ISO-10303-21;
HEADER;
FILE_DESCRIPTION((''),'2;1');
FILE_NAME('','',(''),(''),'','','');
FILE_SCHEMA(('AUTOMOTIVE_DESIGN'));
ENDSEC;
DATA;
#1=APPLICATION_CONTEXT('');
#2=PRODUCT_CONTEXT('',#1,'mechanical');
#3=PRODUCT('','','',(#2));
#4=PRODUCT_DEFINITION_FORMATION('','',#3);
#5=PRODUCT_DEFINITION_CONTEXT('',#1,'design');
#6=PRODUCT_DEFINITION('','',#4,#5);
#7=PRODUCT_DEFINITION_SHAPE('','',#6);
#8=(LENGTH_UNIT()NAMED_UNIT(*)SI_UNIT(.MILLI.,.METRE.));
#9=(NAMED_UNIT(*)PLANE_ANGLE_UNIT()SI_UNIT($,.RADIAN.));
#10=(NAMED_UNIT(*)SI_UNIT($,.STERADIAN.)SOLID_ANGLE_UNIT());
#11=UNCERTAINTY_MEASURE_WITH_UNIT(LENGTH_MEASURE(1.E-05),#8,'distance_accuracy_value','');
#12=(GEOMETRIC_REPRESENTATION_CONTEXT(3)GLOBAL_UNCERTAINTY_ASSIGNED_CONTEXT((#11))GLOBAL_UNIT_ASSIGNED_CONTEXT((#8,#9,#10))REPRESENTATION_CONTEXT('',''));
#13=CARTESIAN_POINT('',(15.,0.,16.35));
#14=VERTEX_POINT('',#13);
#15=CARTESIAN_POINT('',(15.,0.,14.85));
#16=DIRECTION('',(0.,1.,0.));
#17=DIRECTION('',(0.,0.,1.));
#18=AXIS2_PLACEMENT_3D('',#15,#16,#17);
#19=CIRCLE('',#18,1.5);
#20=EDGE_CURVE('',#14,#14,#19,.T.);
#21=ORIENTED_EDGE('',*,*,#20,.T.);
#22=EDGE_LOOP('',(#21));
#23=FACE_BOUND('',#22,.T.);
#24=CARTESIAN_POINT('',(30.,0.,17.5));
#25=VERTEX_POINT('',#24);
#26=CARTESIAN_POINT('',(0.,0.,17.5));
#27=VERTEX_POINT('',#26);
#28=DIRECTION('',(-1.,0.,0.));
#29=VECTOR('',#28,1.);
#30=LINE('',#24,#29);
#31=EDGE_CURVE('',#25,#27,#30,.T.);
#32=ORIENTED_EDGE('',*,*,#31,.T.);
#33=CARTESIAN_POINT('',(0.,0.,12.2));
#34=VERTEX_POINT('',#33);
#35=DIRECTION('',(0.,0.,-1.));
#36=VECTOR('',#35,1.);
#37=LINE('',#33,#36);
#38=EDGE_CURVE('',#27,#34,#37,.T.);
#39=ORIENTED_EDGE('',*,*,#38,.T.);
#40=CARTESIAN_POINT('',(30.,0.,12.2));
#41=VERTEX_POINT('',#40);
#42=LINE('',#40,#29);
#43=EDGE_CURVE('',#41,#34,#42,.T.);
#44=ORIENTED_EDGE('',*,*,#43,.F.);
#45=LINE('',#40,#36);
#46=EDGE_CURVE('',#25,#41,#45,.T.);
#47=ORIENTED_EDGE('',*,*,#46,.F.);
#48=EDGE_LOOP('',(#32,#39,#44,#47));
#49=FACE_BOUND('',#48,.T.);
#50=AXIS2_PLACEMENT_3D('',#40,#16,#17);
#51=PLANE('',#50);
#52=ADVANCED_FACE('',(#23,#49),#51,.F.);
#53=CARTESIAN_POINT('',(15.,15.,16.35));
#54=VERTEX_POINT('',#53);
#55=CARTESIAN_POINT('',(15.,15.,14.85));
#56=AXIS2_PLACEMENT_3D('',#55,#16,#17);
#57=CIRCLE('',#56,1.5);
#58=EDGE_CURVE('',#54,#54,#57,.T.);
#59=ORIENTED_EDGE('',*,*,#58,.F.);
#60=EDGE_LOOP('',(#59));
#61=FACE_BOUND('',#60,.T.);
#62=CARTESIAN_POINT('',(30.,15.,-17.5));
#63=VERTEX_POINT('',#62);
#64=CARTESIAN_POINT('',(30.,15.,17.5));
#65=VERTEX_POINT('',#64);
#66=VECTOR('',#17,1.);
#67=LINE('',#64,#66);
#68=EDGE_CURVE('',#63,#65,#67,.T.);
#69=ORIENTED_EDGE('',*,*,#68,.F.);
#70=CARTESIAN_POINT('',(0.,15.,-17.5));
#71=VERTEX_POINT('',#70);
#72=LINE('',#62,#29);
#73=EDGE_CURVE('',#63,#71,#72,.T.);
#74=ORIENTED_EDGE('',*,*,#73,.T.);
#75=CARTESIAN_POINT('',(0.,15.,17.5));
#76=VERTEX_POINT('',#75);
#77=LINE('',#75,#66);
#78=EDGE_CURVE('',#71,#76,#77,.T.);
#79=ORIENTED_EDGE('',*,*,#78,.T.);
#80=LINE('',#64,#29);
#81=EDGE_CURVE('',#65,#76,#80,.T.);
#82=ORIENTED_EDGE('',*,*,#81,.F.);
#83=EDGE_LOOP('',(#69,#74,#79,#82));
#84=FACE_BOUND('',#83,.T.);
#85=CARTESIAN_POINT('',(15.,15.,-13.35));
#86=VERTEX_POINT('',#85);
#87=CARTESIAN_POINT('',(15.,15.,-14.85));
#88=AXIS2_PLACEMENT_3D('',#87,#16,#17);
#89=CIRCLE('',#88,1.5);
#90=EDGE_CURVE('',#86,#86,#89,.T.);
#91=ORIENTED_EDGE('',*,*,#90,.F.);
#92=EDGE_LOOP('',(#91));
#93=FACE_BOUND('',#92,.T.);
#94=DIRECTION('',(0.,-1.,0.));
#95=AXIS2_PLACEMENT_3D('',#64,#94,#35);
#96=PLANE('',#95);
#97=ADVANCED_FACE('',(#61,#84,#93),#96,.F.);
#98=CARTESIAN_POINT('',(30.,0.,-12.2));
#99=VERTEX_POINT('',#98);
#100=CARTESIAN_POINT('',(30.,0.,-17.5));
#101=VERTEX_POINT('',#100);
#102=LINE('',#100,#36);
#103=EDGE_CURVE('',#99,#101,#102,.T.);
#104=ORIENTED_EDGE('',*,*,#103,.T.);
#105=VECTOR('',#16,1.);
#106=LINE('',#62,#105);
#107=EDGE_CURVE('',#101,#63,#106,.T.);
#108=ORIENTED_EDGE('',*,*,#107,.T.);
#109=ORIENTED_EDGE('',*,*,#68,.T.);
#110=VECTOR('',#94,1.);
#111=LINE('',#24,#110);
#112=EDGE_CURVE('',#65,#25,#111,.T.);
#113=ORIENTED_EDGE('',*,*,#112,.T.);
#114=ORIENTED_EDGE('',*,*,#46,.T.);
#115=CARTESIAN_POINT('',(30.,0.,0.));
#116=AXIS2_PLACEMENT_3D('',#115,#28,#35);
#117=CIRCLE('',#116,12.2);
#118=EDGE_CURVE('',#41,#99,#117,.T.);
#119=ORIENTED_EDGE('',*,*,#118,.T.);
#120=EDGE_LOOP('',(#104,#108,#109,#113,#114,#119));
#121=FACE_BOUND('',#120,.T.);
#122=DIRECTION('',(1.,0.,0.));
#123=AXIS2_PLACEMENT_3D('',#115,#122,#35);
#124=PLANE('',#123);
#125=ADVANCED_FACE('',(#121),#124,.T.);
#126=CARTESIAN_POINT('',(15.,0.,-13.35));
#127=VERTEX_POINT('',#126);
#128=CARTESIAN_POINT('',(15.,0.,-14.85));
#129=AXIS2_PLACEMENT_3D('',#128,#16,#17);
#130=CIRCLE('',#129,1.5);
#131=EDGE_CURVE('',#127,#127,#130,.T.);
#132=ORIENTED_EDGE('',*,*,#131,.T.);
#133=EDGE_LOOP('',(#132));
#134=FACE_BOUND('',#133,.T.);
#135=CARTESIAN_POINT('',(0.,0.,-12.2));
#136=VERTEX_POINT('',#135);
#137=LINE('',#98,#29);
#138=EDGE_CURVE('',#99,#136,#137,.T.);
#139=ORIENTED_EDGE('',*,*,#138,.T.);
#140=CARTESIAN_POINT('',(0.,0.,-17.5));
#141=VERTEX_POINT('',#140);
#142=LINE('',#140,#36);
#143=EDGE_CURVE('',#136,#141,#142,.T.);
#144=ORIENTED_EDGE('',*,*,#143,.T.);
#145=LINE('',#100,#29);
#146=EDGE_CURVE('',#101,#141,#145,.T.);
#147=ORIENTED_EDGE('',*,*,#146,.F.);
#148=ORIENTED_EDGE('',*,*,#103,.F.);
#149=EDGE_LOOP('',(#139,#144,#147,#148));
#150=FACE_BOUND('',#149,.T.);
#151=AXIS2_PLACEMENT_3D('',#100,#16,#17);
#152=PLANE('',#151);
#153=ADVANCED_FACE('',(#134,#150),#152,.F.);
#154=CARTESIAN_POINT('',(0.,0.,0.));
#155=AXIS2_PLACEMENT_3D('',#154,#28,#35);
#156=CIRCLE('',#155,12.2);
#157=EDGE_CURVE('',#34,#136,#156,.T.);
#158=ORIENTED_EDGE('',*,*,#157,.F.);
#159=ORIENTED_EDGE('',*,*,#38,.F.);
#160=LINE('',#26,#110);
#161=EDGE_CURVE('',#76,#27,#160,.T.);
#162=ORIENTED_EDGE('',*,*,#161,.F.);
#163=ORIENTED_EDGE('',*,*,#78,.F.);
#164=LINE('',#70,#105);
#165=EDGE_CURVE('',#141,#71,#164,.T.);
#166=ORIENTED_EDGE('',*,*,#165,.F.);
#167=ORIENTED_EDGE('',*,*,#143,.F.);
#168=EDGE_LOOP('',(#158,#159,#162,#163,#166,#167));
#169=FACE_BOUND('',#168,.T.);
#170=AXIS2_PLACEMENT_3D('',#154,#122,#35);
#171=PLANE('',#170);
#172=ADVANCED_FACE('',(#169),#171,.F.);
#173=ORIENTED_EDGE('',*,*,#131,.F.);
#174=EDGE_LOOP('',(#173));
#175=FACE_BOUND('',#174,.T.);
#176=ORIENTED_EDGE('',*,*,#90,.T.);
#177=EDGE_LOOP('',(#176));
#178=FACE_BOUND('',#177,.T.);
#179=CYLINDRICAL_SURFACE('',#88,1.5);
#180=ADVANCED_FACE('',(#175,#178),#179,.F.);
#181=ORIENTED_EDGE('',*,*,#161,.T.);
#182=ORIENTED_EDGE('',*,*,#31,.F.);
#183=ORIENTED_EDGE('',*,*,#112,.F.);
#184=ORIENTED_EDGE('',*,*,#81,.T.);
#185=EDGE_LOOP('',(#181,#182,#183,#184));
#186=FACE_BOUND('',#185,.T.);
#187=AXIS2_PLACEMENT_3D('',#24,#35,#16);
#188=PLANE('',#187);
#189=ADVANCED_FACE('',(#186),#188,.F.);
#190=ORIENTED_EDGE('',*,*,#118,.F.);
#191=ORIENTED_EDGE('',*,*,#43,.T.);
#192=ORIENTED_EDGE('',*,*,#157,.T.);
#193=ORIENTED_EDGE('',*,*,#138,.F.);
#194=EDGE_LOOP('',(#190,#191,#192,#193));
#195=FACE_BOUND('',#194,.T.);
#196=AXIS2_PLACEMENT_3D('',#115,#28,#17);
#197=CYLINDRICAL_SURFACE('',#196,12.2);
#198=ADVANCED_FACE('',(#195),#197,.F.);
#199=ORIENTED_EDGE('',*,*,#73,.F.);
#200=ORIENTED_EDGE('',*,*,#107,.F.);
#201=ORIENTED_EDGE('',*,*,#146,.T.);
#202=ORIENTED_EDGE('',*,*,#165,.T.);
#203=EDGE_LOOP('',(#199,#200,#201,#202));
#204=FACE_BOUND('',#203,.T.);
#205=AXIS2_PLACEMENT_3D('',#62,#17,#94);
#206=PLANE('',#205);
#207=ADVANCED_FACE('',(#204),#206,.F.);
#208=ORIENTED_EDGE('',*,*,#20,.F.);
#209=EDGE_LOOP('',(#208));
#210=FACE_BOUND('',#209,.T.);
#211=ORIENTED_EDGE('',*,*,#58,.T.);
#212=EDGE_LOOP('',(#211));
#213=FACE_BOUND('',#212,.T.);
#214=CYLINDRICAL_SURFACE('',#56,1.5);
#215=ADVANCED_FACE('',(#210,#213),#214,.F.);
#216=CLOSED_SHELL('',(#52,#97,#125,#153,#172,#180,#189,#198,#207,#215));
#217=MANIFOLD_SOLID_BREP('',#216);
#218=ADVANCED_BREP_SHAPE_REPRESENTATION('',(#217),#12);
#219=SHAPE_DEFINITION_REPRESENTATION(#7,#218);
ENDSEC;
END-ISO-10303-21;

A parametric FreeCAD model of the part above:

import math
import FreeCAD as App
import Part
import Sketcher

V = App.Vector

doc = App.newDocument("Part")
params = doc.addObject("Spreadsheet::Sheet", "Params")
for row, (alias, value) in enumerate([
    ("sketch1_radius", "12.2 mm"),
    ("sketch1_width", "15 mm"),
    ("sketch1_height", "35 mm"),
    ("pad1_length", "30 mm"),
    ("sketch2_diameter", "3 mm"),
    ("hole_diameter", "3 mm"),
], start=1):
    params.set(f"A{row}", alias)
    params.set(f"B{row}", "=" + value)
    params.setAlias(f"B{row}", alias)

body = doc.addObject("PartDesign::Body", "Body")

# Sketch on YZ plane
sketch1 = doc.addObject("Sketcher::SketchObject", "Sketch")
body.addObject(sketch1)
sketch1.AttachmentSupport = (doc.YZ_Plane, [""])
sketch1.MapMode = "FlatFace"
sketch1.addGeometry(Part.LineSegment(V(15, 18, 0), V(0, 18, 0)), False)
sketch1.addGeometry(Part.LineSegment(V(0, 18, 0), V(0, 12, 0)), False)
sketch1.addGeometry(Part.ArcOfCircle(Part.Circle(V(0, 0, 0), V(0, 0, 1), 12), math.radians(-90), math.radians(90)), False)
sketch1.addGeometry(Part.LineSegment(V(0, -12, 0), V(0, -18, 0)), False)
sketch1.addGeometry(Part.LineSegment(V(0, -18, 0), V(15, -18, 0)), False)
sketch1.addGeometry(Part.LineSegment(V(15, -18, 0), V(15, 18, 0)), False)
sketch1.addConstraint(Sketcher.Constraint("Coincident", 0, 2, 1, 1))
sketch1.addConstraint(Sketcher.Constraint("Coincident", 1, 2, 2, 2))
sketch1.addConstraint(Sketcher.Constraint("Coincident", 2, 1, 3, 1))
sketch1.addConstraint(Sketcher.Constraint("Coincident", 3, 2, 4, 1))
sketch1.addConstraint(Sketcher.Constraint("Coincident", 4, 2, 5, 1))
sketch1.addConstraint(Sketcher.Constraint("Coincident", 5, 2, 0, 1))
sketch1.addConstraint(Sketcher.Constraint("Horizontal", 0))
sketch1.addConstraint(Sketcher.Constraint("Vertical", 1))
sketch1.addConstraint(Sketcher.Constraint("Vertical", 3))
sketch1.addConstraint(Sketcher.Constraint("Horizontal", 4))
sketch1.addConstraint(Sketcher.Constraint("Vertical", 5))
sketch1.addConstraint(Sketcher.Constraint("Coincident", 2, 3, -1, 1))
sketch1.addConstraint(Sketcher.Constraint("Symmetric", 0, 2, 3, 2, -1, 1))
sketch1.addConstraint(Sketcher.Constraint("PointOnObject", 0, 2, -2))
sketch1.addConstraint(Sketcher.Constraint("Radius", 2, 12.2))
sketch1.addConstraint(Sketcher.Constraint("DistanceX", 0, 2, 0, 1, 15.0))
sketch1.addConstraint(Sketcher.Constraint("DistanceY", 5, 1, 5, 2, 35.0))
sketch1.setExpression("Constraints[14]", "Params.sketch1_radius")
sketch1.setExpression("Constraints[15]", "Params.sketch1_width")
sketch1.setExpression("Constraints[16]", "Params.sketch1_height")
pad1 = doc.addObject("PartDesign::Pad", "Pad")
body.addObject(pad1)
pad1.Profile = sketch1
pad1.setExpression("Length", "Params.pad1_length")

# Sketch on XZ plane
sketch2 = doc.addObject("Sketcher::SketchObject", "Sketch001")
body.addObject(sketch2)
sketch2.AttachmentSupport = (doc.XZ_Plane, [""])
sketch2.MapMode = "FlatFace"
sketch2.AttachmentOffset = App.Placement(V(0, 0, -15), App.Rotation())
sketch2.addGeometry(Part.Circle(V(15, -14.8, 0), V(0, 0, 1), 1.5), False)
sketch2.addGeometry(Part.Circle(V(15, 14.8, 0), V(0, 0, 1), 1.5), False)
sketch2.addConstraint(Sketcher.Constraint("Equal", 0, 1))
sketch2.addConstraint(Sketcher.Constraint("Symmetric", 0, 3, 1, 3, -1))
sketch2.addConstraint(Sketcher.Constraint("Diameter", 0, 3.0))
sketch2.addConstraint(Sketcher.Constraint("DistanceX", -1, 1, 0, 3, 15.0))
sketch2.addConstraint(Sketcher.Constraint("DistanceY", 0, 3, 1, 3, 29.7))
sketch2.setExpression("Constraints[2]", "Params.sketch2_diameter")
doc.recompute()
hole = doc.addObject("PartDesign::Hole", "Hole")
body.addObject(hole)
hole.Profile = sketch2
hole.ThreadType = "None"
hole.setExpression("Diameter", "Params.hole_diameter")
hole.DepthType = "ThroughAll"
hole.Reversed = True

doc.recompute()
